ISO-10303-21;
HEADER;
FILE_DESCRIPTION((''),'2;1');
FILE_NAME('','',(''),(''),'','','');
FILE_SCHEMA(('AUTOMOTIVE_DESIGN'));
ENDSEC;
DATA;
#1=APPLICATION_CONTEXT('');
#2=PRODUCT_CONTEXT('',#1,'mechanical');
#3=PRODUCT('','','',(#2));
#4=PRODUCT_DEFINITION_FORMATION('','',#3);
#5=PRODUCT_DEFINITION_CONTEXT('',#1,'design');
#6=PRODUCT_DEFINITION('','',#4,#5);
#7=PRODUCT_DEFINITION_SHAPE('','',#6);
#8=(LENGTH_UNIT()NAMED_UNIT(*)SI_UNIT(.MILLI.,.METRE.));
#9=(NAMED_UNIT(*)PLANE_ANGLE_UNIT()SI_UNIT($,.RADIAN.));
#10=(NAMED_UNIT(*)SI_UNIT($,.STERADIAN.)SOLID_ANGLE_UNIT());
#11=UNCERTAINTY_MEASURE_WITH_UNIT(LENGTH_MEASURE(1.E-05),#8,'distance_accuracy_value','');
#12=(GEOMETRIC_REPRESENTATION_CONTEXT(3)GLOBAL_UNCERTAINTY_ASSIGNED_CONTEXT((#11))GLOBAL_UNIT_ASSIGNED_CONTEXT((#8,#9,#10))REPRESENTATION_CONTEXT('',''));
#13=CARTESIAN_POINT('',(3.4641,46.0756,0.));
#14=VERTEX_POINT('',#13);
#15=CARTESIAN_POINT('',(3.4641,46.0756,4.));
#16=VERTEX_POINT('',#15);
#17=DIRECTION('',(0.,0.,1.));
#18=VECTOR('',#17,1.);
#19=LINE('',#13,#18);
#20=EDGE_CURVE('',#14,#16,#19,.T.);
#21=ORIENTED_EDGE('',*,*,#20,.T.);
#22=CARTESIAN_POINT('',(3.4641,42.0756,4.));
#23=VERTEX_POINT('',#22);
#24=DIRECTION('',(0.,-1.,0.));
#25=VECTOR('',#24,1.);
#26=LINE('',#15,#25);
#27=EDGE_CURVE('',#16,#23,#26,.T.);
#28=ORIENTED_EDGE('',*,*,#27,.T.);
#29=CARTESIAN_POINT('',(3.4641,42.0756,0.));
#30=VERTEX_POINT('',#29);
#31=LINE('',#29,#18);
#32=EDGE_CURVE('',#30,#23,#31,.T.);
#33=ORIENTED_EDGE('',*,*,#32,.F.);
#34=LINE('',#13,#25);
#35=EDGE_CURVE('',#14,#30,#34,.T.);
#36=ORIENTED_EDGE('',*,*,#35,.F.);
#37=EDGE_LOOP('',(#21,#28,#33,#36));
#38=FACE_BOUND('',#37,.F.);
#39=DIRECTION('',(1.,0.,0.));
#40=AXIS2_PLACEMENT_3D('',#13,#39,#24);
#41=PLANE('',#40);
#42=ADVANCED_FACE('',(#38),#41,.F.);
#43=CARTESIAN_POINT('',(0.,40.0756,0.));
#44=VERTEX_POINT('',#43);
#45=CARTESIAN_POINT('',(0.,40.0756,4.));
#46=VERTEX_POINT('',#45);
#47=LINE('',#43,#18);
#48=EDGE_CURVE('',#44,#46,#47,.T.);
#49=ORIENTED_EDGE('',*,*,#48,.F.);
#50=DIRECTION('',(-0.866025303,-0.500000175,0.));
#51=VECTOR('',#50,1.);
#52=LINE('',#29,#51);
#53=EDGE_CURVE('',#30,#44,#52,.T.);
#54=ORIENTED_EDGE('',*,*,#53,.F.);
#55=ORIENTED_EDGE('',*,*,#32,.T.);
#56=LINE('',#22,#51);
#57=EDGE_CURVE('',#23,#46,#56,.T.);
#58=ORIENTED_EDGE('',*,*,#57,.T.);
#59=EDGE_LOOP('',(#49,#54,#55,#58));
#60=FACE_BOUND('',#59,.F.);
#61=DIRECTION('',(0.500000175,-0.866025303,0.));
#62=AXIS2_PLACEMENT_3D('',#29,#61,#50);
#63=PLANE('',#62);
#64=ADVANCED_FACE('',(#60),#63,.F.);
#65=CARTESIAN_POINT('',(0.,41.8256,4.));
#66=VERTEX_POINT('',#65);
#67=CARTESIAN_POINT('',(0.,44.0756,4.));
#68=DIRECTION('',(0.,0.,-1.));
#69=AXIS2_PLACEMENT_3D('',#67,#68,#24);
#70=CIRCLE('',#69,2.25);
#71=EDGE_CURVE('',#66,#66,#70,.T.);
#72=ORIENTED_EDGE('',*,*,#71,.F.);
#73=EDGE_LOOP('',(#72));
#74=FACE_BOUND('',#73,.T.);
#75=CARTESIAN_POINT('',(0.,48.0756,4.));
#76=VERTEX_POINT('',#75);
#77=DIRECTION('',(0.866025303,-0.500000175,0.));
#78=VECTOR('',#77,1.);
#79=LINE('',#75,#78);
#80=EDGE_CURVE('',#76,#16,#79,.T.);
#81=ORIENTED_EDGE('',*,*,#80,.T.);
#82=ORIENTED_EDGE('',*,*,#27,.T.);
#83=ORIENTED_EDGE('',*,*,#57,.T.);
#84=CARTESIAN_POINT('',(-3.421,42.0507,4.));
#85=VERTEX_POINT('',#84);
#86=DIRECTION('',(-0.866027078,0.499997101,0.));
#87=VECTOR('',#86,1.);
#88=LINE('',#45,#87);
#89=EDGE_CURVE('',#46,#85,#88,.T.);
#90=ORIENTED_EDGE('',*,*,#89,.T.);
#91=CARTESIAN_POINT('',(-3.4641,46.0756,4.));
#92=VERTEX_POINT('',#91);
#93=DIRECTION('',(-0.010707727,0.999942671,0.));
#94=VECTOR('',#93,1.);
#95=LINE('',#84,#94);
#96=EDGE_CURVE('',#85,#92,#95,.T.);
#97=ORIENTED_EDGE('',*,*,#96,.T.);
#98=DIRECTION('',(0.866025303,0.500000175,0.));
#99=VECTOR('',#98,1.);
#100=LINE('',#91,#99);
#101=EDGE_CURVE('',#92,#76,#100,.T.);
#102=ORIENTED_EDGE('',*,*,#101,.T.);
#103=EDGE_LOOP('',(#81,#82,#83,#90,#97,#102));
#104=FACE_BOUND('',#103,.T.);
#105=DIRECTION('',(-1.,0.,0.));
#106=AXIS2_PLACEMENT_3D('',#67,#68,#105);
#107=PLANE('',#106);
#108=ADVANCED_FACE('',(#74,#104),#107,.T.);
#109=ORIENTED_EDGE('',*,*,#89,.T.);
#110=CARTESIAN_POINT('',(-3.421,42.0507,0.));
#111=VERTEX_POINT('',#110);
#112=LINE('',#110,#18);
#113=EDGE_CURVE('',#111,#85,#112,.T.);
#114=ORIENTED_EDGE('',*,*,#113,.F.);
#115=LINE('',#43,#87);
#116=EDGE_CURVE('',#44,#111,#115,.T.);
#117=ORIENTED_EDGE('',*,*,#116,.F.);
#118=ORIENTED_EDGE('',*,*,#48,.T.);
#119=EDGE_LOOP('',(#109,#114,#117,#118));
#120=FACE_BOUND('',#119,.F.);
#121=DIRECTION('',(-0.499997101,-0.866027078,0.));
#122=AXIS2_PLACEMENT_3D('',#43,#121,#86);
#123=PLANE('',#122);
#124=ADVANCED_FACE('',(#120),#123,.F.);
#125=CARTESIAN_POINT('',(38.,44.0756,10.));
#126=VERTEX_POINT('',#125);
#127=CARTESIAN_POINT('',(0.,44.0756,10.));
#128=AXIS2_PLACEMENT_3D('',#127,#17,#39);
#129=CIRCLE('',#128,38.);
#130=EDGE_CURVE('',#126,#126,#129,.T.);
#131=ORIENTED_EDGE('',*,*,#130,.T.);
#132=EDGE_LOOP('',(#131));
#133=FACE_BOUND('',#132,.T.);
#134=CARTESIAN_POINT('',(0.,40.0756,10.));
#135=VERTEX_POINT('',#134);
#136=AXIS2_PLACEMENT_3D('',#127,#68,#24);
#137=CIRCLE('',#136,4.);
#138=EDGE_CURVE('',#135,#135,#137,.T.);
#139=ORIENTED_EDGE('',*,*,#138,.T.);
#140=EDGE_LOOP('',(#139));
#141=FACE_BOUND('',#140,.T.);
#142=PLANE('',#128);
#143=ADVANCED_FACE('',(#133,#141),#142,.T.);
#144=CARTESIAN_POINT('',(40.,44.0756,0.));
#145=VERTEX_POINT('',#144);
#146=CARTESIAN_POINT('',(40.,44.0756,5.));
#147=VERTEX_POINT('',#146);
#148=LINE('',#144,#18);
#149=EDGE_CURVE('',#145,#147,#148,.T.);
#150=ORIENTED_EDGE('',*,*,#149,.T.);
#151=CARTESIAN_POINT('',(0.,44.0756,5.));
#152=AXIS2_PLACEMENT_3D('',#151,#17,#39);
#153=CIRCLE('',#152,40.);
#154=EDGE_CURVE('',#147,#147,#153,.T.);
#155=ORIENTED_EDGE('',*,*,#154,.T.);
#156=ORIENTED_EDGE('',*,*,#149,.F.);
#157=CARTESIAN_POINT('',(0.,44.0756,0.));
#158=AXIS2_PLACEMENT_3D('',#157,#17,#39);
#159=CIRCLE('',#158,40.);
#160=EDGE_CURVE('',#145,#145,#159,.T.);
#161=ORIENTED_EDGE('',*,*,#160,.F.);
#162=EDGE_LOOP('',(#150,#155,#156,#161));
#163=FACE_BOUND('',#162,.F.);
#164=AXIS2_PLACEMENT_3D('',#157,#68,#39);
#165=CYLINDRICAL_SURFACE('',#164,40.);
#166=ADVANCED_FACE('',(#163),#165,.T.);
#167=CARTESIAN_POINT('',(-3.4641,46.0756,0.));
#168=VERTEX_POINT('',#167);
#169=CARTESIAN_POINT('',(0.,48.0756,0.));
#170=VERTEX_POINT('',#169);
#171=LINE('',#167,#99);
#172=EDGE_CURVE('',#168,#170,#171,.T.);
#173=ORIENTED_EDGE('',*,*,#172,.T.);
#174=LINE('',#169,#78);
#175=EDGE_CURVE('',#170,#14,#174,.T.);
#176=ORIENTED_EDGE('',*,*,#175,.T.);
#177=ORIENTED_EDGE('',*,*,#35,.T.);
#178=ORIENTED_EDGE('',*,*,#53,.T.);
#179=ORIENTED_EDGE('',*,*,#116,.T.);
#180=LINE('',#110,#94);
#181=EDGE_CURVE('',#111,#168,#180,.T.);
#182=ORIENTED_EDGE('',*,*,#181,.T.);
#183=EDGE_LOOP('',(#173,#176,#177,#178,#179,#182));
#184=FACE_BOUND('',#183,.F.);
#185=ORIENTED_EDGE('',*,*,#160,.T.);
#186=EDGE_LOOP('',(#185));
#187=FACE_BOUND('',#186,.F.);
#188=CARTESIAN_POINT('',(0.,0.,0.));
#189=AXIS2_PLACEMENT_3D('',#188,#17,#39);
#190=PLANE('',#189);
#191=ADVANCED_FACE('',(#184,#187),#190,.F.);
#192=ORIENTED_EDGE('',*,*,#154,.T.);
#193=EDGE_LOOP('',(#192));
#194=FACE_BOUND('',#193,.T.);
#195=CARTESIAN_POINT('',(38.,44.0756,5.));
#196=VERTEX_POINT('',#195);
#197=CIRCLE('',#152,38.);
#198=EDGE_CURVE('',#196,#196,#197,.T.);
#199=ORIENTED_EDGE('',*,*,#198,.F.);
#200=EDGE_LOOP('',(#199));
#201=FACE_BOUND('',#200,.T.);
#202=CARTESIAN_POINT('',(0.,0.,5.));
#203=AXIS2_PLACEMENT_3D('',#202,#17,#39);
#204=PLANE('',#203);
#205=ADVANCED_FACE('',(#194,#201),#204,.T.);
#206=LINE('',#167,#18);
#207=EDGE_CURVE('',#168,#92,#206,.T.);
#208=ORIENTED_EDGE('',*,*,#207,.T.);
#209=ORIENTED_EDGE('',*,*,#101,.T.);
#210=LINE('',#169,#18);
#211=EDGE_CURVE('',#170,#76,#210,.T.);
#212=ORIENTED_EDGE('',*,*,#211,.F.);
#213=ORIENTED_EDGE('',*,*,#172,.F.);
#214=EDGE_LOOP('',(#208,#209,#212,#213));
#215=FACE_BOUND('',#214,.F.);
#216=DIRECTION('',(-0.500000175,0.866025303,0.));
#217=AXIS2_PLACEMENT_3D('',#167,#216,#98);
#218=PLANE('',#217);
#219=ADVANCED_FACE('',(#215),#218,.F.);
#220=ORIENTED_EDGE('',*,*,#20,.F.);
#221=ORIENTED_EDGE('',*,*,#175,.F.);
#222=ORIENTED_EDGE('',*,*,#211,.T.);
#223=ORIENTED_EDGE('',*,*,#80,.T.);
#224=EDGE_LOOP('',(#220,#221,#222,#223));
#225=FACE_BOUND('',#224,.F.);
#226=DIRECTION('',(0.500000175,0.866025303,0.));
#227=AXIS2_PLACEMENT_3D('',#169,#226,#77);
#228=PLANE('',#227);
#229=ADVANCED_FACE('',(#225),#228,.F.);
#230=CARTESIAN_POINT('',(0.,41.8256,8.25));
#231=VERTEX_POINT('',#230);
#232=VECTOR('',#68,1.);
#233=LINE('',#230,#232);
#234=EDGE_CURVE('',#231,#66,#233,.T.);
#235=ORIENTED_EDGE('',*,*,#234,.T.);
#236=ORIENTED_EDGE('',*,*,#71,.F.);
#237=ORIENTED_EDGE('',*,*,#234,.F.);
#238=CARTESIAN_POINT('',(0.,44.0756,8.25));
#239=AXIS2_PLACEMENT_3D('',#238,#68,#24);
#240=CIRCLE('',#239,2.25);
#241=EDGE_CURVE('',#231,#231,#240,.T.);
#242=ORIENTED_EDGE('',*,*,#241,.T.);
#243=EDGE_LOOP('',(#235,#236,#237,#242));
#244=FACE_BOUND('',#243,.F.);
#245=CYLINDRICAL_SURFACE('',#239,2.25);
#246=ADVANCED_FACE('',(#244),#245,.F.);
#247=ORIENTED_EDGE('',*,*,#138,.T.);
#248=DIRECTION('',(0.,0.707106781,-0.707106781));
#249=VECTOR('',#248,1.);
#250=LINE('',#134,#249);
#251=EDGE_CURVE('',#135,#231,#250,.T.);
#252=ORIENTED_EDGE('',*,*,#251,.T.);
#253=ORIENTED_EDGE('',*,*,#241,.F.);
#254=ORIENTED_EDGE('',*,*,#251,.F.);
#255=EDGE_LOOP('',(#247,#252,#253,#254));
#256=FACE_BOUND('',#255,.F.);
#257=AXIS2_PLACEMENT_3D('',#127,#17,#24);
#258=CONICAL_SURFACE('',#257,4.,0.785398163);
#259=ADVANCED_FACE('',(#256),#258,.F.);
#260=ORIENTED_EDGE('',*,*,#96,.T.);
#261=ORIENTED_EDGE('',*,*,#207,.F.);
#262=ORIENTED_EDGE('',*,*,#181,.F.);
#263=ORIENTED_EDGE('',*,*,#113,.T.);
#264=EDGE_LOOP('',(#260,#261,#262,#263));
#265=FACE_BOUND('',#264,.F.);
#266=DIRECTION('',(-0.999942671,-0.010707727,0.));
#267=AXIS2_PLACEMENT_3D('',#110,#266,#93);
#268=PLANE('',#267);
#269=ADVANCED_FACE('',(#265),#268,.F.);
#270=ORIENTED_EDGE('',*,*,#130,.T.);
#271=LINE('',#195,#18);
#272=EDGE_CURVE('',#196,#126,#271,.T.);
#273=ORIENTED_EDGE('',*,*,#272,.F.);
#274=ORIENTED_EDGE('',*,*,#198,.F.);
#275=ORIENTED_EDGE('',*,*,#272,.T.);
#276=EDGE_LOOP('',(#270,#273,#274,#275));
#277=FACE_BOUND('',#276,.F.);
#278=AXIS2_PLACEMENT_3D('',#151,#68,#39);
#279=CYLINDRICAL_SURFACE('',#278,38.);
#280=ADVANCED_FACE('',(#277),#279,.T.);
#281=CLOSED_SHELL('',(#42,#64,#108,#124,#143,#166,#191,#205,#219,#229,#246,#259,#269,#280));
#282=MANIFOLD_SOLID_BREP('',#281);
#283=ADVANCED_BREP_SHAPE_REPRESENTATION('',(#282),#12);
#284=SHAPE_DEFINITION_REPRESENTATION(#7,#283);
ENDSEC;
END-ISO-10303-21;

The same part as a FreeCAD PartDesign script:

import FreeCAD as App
import Part
import Sketcher
from FreeCAD import Vector
Q = App.Units.Quantity


def add_polygon(sketch, points):
    """Adds a closed chain of lines whose ends are joined by coincident constraints."""
    first, n = sketch.GeometryCount, len(points)
    for a, b in zip(points, points[1:] + points[:1]):
        sketch.addGeometry(Part.LineSegment(App.Vector(*a, 0), App.Vector(*b, 0)), False)
    for i in range(n):
        sketch.addConstraint(Sketcher.Constraint("Coincident", first + i, 2, first + (i + 1) % n, 1))

doc = App.newDocument("Part")
body = doc.addObject("PartDesign::Body", "Body")

sketch1 = body.newObject("Sketcher::SketchObject", "Sketch")
sketch1.AttachmentSupport = (doc.getObject("XY_Plane"), [""])
sketch1.MapMode = "FlatFace"
sketch1.addGeometry(Part.Circle(Vector(0, 44, 0), Vector(0, 0, 1), 40), False)
sketch1.addConstraint(Sketcher.Constraint("PointOnObject", 0, 3, -2))
sketch1.addConstraint(Sketcher.Constraint("Diameter", 0, Q("80 mm")))
sketch1.addConstraint(Sketcher.Constraint("DistanceY", -1, 1, 0, 3, Q("44.0756 mm")))
pad1 = body.newObject("PartDesign::Pad", "Pad")
pad1.Profile = sketch1
pad1.Length = 5

sketch2 = body.newObject("Sketcher::SketchObject", "Sketch001")
sketch2.AttachmentSupport = (doc.getObject("XY_Plane"), [""])
sketch2.MapMode = "FlatFace"
add_polygon(sketch2, [(-3.5, 46.1), (0, 48.1), (3.5, 46.1), (3.5, 42.1), (0, 40.1), (-3.4, 42.1)])
sketch2.addConstraint(Sketcher.Constraint("Vertical", 2))
sketch2.addConstraint(Sketcher.Constraint("Symmetric", 1, 2, 5, 2, -2))
sketch2.addConstraint(Sketcher.Constraint("PointOnObject", 0, 2, -2))
sketch2.addConstraint(Sketcher.Constraint("PointOnObject", 3, 2, -2))
sketch2.addConstraint(Sketcher.Constraint("Parallel", 0, 3))
sketch2.addConstraint(Sketcher.Constraint("Parallel", 1, 4))
sketch2.addConstraint(Sketcher.Constraint("DistanceY", 2, 2, 2, 1, Q("4 mm")))
sketch2.addConstraint(Sketcher.Constraint("Angle", 0, Q("30 deg")))
sketch2.addConstraint(Sketcher.Constraint("Distance", 0, Q("4 mm")))
sketch2.addConstraint(Sketcher.Constraint("DistanceX", 4, 2, -1, 1, Q("3.421 mm")))
sketch2.addConstraint(Sketcher.Constraint("DistanceY", -1, 1, 0, 2, Q("48.0756 mm")))
pocket1 = body.newObject("PartDesign::Pocket", "Pocket")
pocket1.Profile = sketch2
pocket1.Length = 4
pocket1.Reversed = True

sketch3 = body.newObject("Sketcher::SketchObject", "Sketch002")
sketch3.AttachmentSupport = (doc.getObject("XY_Plane"), [""])
sketch3.MapMode = "FlatFace"
sketch3.AttachmentOffset = App.Placement(Vector(0, 0, 5), App.Rotation())
sketch3.addGeometry(Part.Circle(Vector(0, 44, 0), Vector(0, 0, 1), 38), False)
sketch3.addConstraint(Sketcher.Constraint("PointOnObject", 0, 3, -2))
sketch3.addConstraint(Sketcher.Constraint("Diameter", 0, Q("76 mm")))
sketch3.addConstraint(Sketcher.Constraint("DistanceY", -1, 1, 0, 3, Q("44.0756 mm")))
pad2 = body.newObject("PartDesign::Pad", "Pad001")
pad2.Profile = sketch3
pad2.Length = 5

sketch4 = body.newObject("Sketcher::SketchObject", "Sketch003")
sketch4.AttachmentSupport = (doc.getObject("XY_Plane"), [""])
sketch4.MapMode = "FlatFace"
sketch4.AttachmentOffset = App.Placement(Vector(0, 0, 10), App.Rotation())
sketch4.addGeometry(Part.Circle(Vector(0, 44.1, 0), Vector(0, 0, 1), 2.2), False)
sketch4.addConstraint(Sketcher.Constraint("PointOnObject", 0, 3, -2))
sketch4.addConstraint(Sketcher.Constraint("Diameter", 0, Q("4.5 mm")))
sketch4.addConstraint(Sketcher.Constraint("DistanceY", -1, 1, 0, 3, Q("44.0756 mm")))
doc.recompute()
hole = body.newObject("PartDesign::Hole", "Hole")
hole.Profile = sketch4
hole.ThreadType = "None"
hole.Diameter = 4.5
hole.DepthType = "ThroughAll"
hole.HoleCutType = "Countersink"
hole.HoleCutDiameter = 8
hole.HoleCutCountersinkAngle = 90

doc.recompute()
